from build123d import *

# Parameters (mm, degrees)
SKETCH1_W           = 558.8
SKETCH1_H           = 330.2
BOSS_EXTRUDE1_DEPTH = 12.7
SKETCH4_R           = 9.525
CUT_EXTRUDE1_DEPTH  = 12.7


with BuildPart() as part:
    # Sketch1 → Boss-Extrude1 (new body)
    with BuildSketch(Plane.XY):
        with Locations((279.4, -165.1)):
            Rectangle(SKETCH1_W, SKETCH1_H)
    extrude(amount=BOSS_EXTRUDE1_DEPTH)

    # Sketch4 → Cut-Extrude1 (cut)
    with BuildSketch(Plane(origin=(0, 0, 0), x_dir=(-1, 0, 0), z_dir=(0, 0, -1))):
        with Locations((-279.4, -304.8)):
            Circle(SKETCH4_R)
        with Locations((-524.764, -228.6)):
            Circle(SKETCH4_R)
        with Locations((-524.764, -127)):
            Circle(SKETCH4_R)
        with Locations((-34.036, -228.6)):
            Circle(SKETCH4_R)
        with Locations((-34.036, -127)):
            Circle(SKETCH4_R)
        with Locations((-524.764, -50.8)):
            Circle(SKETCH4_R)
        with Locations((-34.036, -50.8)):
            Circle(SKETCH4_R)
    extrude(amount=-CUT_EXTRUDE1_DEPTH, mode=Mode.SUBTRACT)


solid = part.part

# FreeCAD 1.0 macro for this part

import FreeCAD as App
import Part
import Sketcher

V = App.Vector
Q = App.Units.Quantity

doc = App.newDocument("Part")
body = doc.addObject("PartDesign::Body", "Body")

sketch1 = doc.addObject("Sketcher::SketchObject", "Sketch")
body.addObject(sketch1)
sketch1.AttachmentSupport = (doc.XY_Plane, [""])
sketch1.MapMode = "FlatFace"
sketch1.addGeometry([
    Part.LineSegment(V(0, 0, 0), V(0, -330, 0)),
    Part.LineSegment(V(0, -330, 0), V(559, -330, 0)),
    Part.LineSegment(V(559, -330, 0), V(559, 0, 0)),
    Part.LineSegment(V(559, 0, 0), V(0, 0, 0)),
], False)
sketch1.addConstraint([
    Sketcher.Constraint("Coincident", 0, 2, 1, 1),
    Sketcher.Constraint("Coincident", 1, 2, 2, 1),
    Sketcher.Constraint("Coincident", 2, 2, 3, 1),
    Sketcher.Constraint("Coincident", 3, 2, 0, 1),
    Sketcher.Constraint("Vertical", 0),
    Sketcher.Constraint("Horizontal", 1),
    Sketcher.Constraint("Vertical", 2),
    Sketcher.Constraint("Horizontal", 3),
    Sketcher.Constraint("Coincident", 3, 2, -1, 1),
    Sketcher.Constraint("DistanceX", 1, 1, 1, 2, Q("22 in")),
    Sketcher.Constraint("DistanceY", 0, 2, 0, 1, Q("13 in")),
])
pad1 = doc.addObject("PartDesign::Pad", "Pad")
body.addObject(pad1)
pad1.Profile = sketch1
pad1.Length = Q("0.5 in")

sketch2 = doc.addObject("Sketcher::SketchObject", "Sketch001")
body.addObject(sketch2)
sketch2.AttachmentSupport = (doc.XY_Plane, [""])
sketch2.MapMode = "FlatFace"
sketch2.addGeometry([
    Part.Circle(V(279, -305, 0), V(0, 0, 1), 10),
    Part.Circle(V(525, -229, 0), V(0, 0, 1), 10),
    Part.Circle(V(525, -127, 0), V(0, 0, 1), 10),
    Part.Circle(V(34, -229, 0), V(0, 0, 1), 10),
    Part.Circle(V(34, -127, 0), V(0, 0, 1), 10),
    Part.Circle(V(525, -51, 0), V(0, 0, 1), 10),
    Part.Circle(V(34, -51, 0), V(0, 0, 1), 10),
], False)
sketch2.addConstraint([
    Sketcher.Constraint("Equal", 0, 1),
    Sketcher.Constraint("Equal", 1, 2),
    Sketcher.Constraint("Equal", 2, 3),
    Sketcher.Constraint("Equal", 3, 4),
    Sketcher.Constraint("Equal", 4, 5),
    Sketcher.Constraint("Equal", 5, 6),
    Sketcher.Constraint("Horizontal", 1, 3, 3, 3),
    Sketcher.Constraint("Horizontal", 2, 3, 4, 3),
    Sketcher.Constraint("Horizontal", 5, 3, 6, 3),
    Sketcher.Constraint("Vertical", 1, 3, 2, 3),
    Sketcher.Constraint("Vertical", 3, 3, 4, 3),
    Sketcher.Constraint("Vertical", 2, 3, 5, 3),
    Sketcher.Constraint("Vertical", 4, 3, 6, 3),
    Sketcher.Constraint("Diameter", 0, Q("0.75 in")),
    Sketcher.Constraint("DistanceX", -1, 1, 0, 3, Q("11 in")),
    Sketcher.Constraint("DistanceY", 0, 3, -1, 1, Q("12 in")),
    Sketcher.Constraint("DistanceY", 1, 3, -1, 1, Q("9 in")),
    Sketcher.Constraint("DistanceY", 2, 3, -1, 1, Q("5 in")),
    Sketcher.Constraint("DistanceY", 5, 3, -1, 1, Q("2 in")),
    Sketcher.Constraint("DistanceX", -1, 1, 1, 3, Q("20.66 in")),
    Sketcher.Constraint("DistanceX", -1, 1, 3, 3, Q("1.34 in")),
])
pocket1 = doc.addObject("PartDesign::Pocket", "Pocket")
body.addObject(pocket1)
pocket1.Profile = sketch2
pocket1.Length = Q("0.5 in")
pocket1.Reversed = True

doc.recompute()
